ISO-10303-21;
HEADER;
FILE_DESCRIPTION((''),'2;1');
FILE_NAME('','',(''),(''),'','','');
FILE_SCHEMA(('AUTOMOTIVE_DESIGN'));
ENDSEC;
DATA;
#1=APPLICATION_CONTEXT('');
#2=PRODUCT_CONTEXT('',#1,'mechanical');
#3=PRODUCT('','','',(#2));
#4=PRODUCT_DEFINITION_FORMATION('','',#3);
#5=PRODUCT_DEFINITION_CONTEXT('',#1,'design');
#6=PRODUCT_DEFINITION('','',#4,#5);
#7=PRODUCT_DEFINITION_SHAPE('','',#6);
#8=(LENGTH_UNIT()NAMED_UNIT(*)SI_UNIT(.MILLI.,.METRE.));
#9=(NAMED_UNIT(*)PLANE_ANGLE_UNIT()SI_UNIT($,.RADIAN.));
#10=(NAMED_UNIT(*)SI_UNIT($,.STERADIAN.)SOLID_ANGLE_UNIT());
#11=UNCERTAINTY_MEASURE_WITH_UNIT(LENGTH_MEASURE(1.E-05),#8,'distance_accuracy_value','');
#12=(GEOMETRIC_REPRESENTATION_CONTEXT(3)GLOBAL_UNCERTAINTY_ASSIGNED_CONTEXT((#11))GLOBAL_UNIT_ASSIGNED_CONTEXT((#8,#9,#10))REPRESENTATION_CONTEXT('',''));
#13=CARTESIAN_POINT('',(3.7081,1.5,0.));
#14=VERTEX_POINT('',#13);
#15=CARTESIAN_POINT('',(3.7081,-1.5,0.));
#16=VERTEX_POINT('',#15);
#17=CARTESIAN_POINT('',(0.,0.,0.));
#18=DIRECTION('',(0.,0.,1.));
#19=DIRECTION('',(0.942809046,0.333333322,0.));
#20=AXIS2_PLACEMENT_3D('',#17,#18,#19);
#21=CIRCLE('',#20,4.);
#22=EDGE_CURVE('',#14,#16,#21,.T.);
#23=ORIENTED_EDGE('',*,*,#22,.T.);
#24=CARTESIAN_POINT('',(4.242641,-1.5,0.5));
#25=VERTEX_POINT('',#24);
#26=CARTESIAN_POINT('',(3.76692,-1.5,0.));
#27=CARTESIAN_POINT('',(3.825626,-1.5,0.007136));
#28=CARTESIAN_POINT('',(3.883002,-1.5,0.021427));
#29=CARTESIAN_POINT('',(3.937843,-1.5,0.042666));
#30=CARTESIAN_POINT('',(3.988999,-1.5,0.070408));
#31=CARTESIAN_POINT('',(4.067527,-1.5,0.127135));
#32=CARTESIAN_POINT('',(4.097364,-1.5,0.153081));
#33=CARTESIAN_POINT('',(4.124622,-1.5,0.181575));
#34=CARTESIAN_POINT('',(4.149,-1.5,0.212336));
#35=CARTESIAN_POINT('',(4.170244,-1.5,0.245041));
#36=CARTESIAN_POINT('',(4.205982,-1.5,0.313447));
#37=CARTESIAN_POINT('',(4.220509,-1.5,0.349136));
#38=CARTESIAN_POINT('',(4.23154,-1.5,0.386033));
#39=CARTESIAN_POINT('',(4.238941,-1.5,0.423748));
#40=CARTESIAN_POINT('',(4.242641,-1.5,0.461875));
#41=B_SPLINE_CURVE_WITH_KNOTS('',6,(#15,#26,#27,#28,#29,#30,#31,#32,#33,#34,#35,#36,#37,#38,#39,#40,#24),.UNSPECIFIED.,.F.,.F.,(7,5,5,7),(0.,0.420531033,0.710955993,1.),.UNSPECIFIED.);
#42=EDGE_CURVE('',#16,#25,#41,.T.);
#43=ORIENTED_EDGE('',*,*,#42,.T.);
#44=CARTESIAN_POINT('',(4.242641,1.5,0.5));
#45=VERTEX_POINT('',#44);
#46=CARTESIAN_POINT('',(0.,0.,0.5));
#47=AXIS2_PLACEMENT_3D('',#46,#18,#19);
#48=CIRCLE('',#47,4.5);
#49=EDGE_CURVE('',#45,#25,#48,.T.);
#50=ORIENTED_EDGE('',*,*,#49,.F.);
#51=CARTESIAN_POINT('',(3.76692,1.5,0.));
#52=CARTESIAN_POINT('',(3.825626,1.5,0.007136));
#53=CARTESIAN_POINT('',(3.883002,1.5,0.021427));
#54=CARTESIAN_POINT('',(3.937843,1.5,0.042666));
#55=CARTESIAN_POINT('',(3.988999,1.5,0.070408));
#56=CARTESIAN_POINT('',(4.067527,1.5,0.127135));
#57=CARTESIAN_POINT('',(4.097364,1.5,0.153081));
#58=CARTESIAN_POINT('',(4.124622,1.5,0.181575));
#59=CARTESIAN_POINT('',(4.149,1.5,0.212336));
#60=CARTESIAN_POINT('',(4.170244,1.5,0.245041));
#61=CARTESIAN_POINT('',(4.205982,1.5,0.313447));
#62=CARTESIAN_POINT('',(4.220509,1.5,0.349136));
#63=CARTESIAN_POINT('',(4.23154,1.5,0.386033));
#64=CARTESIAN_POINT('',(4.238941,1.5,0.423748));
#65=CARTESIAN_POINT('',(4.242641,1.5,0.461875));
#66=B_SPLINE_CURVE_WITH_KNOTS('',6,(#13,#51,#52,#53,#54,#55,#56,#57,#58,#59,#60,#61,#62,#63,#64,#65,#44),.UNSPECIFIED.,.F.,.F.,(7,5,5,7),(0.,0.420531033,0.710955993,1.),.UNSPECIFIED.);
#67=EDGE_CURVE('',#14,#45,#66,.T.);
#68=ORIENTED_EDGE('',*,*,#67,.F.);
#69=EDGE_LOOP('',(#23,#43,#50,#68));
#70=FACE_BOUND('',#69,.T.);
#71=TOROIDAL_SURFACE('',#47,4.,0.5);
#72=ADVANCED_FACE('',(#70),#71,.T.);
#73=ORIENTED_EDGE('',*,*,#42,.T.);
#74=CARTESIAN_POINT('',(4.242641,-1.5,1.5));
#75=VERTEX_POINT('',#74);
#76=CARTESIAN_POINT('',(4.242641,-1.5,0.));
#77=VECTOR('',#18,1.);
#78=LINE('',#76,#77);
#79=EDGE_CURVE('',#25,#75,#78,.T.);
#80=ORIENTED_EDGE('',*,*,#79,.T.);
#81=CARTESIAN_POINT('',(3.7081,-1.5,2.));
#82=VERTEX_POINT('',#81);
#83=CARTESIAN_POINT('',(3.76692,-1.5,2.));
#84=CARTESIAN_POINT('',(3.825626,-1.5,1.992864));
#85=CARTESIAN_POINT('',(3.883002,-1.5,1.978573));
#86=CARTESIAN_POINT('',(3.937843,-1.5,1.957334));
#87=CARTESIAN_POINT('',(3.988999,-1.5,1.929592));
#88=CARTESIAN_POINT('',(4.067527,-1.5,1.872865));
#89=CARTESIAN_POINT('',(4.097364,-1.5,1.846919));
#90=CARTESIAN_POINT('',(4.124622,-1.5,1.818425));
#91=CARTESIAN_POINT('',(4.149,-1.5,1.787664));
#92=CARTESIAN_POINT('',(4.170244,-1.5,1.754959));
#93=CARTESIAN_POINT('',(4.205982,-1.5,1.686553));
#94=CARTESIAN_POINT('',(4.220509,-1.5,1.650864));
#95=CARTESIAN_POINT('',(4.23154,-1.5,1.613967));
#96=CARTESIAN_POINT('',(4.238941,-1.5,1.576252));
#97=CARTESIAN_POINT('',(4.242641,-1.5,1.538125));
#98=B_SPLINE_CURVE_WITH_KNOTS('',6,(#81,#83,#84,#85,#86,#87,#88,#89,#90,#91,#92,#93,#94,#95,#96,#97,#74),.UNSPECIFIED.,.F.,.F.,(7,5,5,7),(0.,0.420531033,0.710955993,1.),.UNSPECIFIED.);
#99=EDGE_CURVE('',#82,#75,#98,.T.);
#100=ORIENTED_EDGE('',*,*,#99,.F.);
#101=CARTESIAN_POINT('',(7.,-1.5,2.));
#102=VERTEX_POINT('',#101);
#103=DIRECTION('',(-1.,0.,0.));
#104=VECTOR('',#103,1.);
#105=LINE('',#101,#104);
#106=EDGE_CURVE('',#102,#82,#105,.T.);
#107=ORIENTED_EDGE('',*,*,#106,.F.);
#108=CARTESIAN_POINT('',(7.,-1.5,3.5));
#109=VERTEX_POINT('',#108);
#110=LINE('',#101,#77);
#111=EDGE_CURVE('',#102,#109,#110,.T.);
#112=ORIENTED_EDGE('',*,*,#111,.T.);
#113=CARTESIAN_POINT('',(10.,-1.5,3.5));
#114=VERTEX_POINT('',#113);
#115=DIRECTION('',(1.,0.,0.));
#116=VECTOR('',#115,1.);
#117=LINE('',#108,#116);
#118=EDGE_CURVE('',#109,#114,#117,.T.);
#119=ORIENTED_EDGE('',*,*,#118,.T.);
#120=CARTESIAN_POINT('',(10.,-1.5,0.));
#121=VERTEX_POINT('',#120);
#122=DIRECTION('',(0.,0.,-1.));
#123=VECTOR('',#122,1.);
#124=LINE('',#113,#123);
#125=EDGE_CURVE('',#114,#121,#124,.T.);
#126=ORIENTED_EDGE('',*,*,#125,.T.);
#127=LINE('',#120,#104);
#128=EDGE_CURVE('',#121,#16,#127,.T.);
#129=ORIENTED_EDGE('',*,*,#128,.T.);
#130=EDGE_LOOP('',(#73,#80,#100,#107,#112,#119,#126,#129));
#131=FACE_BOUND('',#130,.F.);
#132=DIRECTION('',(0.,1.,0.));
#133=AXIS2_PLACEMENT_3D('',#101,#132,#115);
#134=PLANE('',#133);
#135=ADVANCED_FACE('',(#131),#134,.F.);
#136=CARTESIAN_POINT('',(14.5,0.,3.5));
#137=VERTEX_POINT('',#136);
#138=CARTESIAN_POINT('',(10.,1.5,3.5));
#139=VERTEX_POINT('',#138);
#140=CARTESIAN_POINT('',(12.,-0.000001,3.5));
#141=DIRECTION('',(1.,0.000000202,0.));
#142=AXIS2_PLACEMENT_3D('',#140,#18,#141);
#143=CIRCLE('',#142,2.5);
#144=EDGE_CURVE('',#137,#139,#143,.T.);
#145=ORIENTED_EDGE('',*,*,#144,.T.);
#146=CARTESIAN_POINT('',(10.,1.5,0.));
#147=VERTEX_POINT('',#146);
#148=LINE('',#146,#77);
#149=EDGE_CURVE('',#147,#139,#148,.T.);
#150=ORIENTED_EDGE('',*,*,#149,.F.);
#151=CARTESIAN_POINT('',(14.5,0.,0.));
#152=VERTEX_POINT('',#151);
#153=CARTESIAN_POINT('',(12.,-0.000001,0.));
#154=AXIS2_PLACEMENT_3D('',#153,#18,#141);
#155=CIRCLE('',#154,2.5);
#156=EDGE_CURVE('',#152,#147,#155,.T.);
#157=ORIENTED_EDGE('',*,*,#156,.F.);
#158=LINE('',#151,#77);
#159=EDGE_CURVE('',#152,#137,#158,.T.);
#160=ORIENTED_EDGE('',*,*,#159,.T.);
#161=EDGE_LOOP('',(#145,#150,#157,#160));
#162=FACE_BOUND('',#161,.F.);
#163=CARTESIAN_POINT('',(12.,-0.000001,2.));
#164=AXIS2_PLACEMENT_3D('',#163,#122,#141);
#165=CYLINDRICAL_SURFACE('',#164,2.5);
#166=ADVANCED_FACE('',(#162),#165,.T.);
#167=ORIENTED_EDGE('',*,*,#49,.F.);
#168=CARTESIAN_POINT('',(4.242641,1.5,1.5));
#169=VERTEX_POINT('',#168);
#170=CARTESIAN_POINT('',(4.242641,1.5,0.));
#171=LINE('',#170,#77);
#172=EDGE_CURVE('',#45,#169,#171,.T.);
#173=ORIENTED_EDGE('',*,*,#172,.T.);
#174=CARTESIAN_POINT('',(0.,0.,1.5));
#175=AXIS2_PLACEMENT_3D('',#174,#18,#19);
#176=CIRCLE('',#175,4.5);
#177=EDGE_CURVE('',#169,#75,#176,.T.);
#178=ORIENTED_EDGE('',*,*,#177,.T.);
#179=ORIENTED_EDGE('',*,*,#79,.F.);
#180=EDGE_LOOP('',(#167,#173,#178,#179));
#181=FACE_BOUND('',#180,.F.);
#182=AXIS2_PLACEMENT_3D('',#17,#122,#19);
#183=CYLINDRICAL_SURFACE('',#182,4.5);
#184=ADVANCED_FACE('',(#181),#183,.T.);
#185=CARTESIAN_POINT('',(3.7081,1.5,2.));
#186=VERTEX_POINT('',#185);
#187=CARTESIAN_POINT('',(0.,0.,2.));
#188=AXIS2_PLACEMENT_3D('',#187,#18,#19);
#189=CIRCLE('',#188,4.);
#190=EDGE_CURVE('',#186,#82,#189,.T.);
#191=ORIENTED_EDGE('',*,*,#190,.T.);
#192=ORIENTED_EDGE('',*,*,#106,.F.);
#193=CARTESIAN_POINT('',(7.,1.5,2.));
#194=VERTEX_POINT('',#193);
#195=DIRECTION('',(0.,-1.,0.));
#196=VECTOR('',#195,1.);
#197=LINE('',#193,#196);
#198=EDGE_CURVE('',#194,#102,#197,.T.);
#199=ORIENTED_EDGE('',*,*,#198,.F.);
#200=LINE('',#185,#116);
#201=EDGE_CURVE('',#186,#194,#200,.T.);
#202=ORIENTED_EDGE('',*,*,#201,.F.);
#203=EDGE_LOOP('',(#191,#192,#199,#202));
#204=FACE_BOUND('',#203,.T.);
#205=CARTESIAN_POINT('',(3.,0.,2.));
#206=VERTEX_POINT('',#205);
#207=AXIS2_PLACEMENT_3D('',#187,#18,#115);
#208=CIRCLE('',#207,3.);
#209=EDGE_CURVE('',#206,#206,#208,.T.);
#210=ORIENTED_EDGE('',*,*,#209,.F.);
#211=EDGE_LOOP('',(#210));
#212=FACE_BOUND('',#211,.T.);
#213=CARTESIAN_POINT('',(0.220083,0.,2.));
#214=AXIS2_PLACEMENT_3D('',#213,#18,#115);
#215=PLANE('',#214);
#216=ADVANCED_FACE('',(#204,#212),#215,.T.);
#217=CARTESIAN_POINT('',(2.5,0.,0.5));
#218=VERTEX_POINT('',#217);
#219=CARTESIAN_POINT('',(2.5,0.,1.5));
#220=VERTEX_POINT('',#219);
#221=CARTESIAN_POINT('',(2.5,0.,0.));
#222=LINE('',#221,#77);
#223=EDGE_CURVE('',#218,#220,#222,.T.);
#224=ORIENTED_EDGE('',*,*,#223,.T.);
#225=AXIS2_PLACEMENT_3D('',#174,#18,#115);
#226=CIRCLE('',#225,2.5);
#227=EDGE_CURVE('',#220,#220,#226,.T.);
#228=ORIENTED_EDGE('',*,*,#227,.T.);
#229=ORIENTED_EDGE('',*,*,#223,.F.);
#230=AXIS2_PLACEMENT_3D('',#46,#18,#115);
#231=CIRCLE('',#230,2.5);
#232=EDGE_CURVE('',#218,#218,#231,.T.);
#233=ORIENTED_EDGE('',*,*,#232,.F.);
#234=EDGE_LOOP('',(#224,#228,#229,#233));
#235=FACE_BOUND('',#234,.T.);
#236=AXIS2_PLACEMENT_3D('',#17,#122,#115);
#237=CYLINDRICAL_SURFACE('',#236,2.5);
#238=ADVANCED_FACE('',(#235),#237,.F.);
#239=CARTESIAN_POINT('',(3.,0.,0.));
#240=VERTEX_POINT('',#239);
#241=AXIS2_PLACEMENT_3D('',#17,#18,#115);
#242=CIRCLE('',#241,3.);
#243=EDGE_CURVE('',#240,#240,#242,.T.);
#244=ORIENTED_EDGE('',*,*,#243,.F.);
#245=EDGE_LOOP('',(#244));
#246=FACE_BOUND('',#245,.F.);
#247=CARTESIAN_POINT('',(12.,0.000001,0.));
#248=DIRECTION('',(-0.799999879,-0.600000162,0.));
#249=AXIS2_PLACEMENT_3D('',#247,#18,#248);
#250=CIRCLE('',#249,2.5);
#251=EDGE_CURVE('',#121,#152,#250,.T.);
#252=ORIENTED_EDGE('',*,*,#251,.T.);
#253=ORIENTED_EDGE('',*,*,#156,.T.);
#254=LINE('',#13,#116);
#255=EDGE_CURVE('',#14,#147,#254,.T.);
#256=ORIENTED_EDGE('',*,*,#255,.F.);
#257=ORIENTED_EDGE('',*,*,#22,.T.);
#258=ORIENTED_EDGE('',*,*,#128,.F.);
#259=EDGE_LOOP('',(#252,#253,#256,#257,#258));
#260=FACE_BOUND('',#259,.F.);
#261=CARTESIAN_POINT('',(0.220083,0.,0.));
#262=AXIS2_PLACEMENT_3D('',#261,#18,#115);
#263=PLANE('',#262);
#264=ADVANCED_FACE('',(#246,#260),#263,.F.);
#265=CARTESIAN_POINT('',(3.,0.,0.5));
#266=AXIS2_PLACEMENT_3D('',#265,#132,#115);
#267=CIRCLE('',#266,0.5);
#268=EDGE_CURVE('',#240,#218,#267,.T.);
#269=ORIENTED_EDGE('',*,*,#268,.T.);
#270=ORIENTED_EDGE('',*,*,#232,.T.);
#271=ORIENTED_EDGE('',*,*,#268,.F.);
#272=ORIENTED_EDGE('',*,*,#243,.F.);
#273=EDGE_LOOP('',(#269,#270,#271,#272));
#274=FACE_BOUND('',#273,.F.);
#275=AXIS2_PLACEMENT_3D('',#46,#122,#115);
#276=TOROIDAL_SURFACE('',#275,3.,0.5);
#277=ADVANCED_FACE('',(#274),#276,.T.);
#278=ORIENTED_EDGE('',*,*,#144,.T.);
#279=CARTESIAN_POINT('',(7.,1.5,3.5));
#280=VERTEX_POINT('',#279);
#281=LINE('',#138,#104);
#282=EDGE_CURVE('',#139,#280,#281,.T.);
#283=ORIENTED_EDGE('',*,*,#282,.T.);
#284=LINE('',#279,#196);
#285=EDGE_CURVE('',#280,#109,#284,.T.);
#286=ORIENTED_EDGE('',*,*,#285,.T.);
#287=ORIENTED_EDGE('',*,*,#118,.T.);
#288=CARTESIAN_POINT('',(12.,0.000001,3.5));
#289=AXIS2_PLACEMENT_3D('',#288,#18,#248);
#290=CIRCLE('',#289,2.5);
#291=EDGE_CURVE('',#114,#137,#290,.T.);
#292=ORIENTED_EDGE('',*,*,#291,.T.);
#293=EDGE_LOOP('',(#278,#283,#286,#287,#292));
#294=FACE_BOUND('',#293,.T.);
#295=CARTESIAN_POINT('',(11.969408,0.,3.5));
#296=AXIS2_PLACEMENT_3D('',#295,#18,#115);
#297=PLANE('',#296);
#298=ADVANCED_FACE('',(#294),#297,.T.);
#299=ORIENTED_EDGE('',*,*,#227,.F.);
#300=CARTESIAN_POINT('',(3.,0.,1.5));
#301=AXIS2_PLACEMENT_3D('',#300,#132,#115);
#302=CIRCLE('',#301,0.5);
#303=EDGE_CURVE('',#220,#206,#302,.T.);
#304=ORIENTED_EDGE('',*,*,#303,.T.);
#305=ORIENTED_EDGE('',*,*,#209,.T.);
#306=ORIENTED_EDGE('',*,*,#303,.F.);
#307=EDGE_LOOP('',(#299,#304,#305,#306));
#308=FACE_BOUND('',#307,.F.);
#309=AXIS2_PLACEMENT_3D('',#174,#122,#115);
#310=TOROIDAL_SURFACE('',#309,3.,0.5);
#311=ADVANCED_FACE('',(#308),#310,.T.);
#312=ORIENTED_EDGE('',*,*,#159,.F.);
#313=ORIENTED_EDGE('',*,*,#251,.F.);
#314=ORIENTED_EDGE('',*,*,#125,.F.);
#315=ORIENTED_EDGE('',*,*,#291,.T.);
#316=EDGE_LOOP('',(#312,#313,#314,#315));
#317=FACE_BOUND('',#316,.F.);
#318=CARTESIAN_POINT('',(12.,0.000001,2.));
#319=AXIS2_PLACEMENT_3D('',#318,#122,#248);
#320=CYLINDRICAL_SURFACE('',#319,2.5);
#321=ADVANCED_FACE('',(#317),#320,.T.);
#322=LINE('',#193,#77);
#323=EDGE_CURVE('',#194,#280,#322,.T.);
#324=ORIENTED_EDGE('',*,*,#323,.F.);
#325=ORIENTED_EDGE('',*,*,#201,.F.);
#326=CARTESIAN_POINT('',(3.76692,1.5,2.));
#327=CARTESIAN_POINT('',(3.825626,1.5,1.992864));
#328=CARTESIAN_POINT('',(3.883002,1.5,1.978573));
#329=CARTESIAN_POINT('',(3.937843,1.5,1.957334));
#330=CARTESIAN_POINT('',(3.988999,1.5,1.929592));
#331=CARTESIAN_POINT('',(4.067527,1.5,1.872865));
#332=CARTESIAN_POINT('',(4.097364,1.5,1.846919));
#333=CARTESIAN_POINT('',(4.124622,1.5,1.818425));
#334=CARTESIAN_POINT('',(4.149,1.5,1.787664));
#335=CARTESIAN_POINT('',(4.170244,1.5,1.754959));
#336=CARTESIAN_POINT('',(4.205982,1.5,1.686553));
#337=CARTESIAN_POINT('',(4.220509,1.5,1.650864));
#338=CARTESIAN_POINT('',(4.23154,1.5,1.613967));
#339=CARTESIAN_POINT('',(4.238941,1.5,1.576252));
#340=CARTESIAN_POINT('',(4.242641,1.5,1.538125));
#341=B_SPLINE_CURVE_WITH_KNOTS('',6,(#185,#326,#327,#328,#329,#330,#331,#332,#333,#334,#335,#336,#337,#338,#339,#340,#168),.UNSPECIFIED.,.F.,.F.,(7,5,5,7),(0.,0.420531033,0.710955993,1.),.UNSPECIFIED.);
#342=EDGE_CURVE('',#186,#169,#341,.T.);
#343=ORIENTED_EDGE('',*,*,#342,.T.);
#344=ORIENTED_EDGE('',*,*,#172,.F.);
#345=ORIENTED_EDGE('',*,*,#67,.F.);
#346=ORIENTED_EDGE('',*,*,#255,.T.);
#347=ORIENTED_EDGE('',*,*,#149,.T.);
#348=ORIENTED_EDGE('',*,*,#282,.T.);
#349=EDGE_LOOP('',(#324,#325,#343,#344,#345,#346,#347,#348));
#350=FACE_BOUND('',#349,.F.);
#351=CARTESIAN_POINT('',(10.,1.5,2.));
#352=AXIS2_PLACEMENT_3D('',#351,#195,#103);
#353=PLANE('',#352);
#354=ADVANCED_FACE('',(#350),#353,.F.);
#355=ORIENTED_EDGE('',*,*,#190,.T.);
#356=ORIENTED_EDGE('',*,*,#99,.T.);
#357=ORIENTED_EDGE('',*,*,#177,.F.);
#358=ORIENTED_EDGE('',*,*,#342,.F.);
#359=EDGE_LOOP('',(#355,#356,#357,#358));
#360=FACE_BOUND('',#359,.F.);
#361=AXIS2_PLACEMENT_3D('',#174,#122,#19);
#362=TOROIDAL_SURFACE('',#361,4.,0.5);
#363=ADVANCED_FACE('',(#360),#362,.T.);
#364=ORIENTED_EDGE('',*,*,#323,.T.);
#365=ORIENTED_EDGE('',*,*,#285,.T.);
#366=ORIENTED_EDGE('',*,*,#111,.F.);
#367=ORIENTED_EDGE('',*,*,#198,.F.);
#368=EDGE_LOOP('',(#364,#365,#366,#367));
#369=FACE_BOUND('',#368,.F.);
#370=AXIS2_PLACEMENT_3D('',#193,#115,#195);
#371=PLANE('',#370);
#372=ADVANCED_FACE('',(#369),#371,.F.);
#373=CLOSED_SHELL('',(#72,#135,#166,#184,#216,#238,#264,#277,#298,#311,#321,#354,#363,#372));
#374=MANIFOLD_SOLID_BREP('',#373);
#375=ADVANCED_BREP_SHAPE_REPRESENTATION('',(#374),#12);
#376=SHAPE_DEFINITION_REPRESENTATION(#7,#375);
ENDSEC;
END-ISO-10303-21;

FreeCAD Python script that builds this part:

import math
import FreeCAD as App
import Part
import Sketcher
from FreeCAD import Vector


def edges_at(feature, points):
    """Names of the edges that pass closest to the given points."""
    edges = feature.Shape.Edges
    near = lambda p: min(range(len(edges)), key=lambda i: edges[i].distToShape(Part.Vertex(*p))[0])
    return sorted({f"Edge{near(p) + 1}" for p in points})

doc = App.newDocument("Part")
body = doc.addObject("PartDesign::Body", "Body")

# Sketch on XY plane
sketch1 = body.newObject("Sketcher::SketchObject", "Sketch")
sketch1.AttachmentSupport = (doc.getObject("XY_Plane"), [""])
sketch1.MapMode = "FlatFace"
sketch1.addGeometry([
    Part.ArcOfCircle(Part.Circle(Vector(0, 0, 0), Vector(0, 0, 1), 4.5), math.radians(19), math.radians(341)),  # 0
    Part.LineSegment(Vector(4.2, -1.5, 0), Vector(10, -1.5, 0)),  # 1
    Part.ArcOfCircle(Part.Circle(Vector(12, 0, 0), Vector(0, 0, 1), 2.5), math.radians(-143), math.radians(0)),  # 2
    Part.ArcOfCircle(Part.Circle(Vector(12, 0, 0), Vector(0, 0, 1), 2.5), math.radians(0), math.radians(143)),  # 3
    Part.LineSegment(Vector(10, 1.5, 0), Vector(4.2, 1.5, 0)),  # 4
    Part.Circle(Vector(0, 0, 0), Vector(0, 0, 1), 2.5),  # 5
], False)
sketch1.addConstraint([
    Sketcher.Constraint("Coincident", 0, 2, 1, 1),
    Sketcher.Constraint("Coincident", 1, 2, 2, 1),
    Sketcher.Constraint("Tangent", 2, 2, 3, 1),
    Sketcher.Constraint("Coincident", 3, 2, 4, 1),
    Sketcher.Constraint("Coincident", 4, 2, 0, 1),
    Sketcher.Constraint("Horizontal", 1),
    Sketcher.Constraint("Horizontal", 4),
    Sketcher.Constraint("Coincident", 0, 3, -1, 1),
    Sketcher.Constraint("Coincident", 5, 3, -1, 1),
    Sketcher.Constraint("Equal", 2, 3),
    Sketcher.Constraint("Equal", 3, 5),
    Sketcher.Constraint("Symmetric", 1, 2, 3, 2, -1),
    Sketcher.Constraint("PointOnObject", 2, 2, -1),
    Sketcher.Constraint("Diameter", 5, 5.0),
    Sketcher.Constraint("Radius", 0, 4.5),
    Sketcher.Constraint("DistanceX", -1, 1, 2, 3, 12.0),
    Sketcher.Constraint("DistanceX", -1, 1, 1, 2, 10.0),
])
pad1 = body.newObject("PartDesign::Pad", "Pad")
pad1.Profile = sketch1
pad1.Length = 2

# Sketch on XY plane
sketch2 = body.newObject("Sketcher::SketchObject", "Sketch001")
sketch2.AttachmentSupport = (doc.getObject("XY_Plane"), [""])
sketch2.MapMode = "FlatFace"
sketch2.AttachmentOffset = App.Placement(Vector(0, 0, 2), App.Rotation())
sketch2.addGeometry([
    Part.ArcOfCircle(Part.Circle(Vector(12, 0, 0), Vector(0, 0, 1), 2.5), math.radians(-143), math.radians(0)),  # 0
    Part.ArcOfCircle(Part.Circle(Vector(12, 0, 0), Vector(0, 0, 1), 2.5), math.radians(0), math.radians(143)),  # 1
    Part.LineSegment(Vector(10, 1.5, 0), Vector(7, 1.5, 0)),  # 2
    Part.LineSegment(Vector(7, 1.5, 0), Vector(7, -1.5, 0)),  # 3
    Part.LineSegment(Vector(7, -1.5, 0), Vector(10, -1.5, 0)),  # 4
], False)
sketch2.addConstraint([
    Sketcher.Constraint("Tangent", 0, 2, 1, 1),
    Sketcher.Constraint("Coincident", 1, 2, 2, 1),
    Sketcher.Constraint("Coincident", 2, 2, 3, 1),
    Sketcher.Constraint("Coincident", 3, 2, 4, 1),
    Sketcher.Constraint("Coincident", 4, 2, 0, 1),
    Sketcher.Constraint("Horizontal", 2),
    Sketcher.Constraint("Vertical", 3),
    Sketcher.Constraint("Horizontal", 4),
    Sketcher.Constraint("Equal", 0, 1),
    Sketcher.Constraint("Symmetric", 1, 2, 4, 2, -1),
    Sketcher.Constraint("PointOnObject", 0, 2, -1),
    Sketcher.Constraint("Equal", 4, 3),
    Sketcher.Constraint("Radius", 0, 2.5),
    Sketcher.Constraint("DistanceX", 2, 2, 2, 1, 3.0),
    Sketcher.Constraint("DistanceX", -1, 1, 0, 3, 12.0),
])
pad2 = body.newObject("PartDesign::Pad", "Pad001")
pad2.Profile = sketch2
pad2.Length = 1.5
doc.recompute()

fillet = body.newObject("PartDesign::Fillet", "Fillet")
fillet.Base = (pad2, edges_at(pad2, [
    (-2.5, 0, 2),
    (-4.5, 0, 2),
    (-4.5, 0, 0),
    (-2.5, 0, 0),
]))
fillet.Radius = 0.5

doc.recompute()
